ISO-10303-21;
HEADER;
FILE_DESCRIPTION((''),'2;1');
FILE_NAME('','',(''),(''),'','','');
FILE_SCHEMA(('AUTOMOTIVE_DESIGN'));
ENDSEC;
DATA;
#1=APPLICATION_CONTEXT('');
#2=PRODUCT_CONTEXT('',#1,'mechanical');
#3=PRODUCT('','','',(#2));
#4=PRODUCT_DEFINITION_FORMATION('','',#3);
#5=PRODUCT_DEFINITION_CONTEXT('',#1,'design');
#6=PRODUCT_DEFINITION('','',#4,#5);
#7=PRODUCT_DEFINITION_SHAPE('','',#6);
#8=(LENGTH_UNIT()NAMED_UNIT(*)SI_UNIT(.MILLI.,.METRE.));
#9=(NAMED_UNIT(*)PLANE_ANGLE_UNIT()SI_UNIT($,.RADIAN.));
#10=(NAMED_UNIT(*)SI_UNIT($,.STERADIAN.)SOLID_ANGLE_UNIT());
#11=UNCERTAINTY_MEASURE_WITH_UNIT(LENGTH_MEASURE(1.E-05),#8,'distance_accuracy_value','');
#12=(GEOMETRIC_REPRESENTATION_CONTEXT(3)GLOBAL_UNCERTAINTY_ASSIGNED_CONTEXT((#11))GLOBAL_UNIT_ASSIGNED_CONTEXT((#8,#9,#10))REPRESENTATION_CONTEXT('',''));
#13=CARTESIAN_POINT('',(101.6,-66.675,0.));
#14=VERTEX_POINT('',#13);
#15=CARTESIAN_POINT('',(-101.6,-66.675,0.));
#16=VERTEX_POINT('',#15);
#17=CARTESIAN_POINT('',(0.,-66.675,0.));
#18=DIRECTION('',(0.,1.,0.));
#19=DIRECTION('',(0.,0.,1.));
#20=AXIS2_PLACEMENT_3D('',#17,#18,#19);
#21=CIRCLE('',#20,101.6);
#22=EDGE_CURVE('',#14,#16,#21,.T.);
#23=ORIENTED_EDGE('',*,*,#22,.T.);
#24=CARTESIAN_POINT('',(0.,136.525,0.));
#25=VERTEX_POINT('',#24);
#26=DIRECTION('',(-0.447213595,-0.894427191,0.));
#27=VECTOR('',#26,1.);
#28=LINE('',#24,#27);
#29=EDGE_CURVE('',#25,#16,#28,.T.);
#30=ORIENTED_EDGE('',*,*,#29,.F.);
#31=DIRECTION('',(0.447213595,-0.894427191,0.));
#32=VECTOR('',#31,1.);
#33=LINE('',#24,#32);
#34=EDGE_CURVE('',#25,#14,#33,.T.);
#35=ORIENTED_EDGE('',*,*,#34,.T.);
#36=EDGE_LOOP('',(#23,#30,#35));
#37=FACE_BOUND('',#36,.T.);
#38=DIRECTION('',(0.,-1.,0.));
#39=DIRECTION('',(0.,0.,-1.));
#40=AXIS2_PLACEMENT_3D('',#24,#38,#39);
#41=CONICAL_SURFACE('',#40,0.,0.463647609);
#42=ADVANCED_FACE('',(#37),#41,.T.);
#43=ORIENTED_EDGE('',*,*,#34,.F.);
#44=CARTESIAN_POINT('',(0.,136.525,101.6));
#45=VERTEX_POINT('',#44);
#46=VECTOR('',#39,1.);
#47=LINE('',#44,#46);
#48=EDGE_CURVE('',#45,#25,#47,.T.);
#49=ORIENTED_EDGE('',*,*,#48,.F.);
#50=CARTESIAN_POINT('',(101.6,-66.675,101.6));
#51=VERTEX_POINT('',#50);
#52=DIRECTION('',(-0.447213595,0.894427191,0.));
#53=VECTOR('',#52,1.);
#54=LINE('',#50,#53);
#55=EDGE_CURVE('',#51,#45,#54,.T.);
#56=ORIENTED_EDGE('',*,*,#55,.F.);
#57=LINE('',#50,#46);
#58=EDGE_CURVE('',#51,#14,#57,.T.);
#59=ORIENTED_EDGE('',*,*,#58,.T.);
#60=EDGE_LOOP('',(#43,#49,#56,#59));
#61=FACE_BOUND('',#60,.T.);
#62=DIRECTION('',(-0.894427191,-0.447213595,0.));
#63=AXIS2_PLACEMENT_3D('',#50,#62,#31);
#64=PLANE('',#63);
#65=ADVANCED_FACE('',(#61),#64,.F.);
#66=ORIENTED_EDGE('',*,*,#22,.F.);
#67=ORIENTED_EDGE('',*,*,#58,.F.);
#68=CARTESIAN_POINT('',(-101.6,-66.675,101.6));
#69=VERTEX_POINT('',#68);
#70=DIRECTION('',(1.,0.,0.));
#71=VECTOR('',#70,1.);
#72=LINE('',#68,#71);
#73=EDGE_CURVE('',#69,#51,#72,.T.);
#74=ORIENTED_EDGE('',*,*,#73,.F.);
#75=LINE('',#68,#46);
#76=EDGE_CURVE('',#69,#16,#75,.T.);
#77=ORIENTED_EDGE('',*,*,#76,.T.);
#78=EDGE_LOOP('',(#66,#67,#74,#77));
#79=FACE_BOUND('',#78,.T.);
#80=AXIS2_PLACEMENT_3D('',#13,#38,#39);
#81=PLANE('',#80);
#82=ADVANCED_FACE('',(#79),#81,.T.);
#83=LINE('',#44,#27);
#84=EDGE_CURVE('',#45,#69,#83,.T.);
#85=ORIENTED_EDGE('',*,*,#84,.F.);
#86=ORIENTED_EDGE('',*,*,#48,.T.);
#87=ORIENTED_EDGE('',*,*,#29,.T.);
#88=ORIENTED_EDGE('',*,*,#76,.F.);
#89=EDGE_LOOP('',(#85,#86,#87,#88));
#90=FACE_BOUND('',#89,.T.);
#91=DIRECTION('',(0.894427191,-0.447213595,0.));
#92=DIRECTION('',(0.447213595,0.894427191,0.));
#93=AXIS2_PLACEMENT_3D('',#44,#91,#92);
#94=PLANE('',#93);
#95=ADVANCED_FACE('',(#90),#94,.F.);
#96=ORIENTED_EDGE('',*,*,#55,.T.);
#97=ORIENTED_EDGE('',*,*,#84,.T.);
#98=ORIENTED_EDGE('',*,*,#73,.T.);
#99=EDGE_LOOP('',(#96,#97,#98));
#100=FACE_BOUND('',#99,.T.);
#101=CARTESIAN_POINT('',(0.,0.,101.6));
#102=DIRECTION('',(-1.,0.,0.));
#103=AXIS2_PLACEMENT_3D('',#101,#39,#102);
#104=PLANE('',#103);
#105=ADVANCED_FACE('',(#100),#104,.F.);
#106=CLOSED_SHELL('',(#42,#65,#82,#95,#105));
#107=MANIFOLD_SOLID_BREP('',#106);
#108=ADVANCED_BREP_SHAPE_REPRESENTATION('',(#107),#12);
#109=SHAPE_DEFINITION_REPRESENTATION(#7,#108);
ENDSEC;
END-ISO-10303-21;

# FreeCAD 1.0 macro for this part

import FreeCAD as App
import Part
import Sketcher

V = App.Vector
Q = App.Units.Quantity


def add_polygon(sketch, points):
    """Adds a closed chain of lines whose ends are joined by coincident constraints."""
    first, n = sketch.GeometryCount, len(points)
    for a, b in zip(points, points[1:] + points[:1]):
        sketch.addGeometry(Part.LineSegment(App.Vector(*a, 0), App.Vector(*b, 0)), False)
    for i in range(n):
        sketch.addConstraint(Sketcher.Constraint("Coincident", first + i, 2, first + (i + 1) % n, 1))

doc = App.newDocument("Part")
body = doc.addObject("PartDesign::Body", "Body")

# Sketch on XY plane
sketch1 = body.newObject("Sketcher::SketchObject", "Sketch")
sketch1.AttachmentSupport = (doc.getObject("XY_Plane"), [""])
sketch1.MapMode = "FlatFace"
add_polygon(sketch1, [(0, 137), (-102, -67), (0, -67)])  # lines 0-2
sketch1.addConstraint([
    Sketcher.Constraint("Horizontal", 1),
    Sketcher.Constraint("Vertical", 2),
    Sketcher.Constraint("PointOnObject", 1, 2, -2),
    Sketcher.Constraint("DistanceX", 1, 1, 1, 2, Q("4 in")),
    Sketcher.Constraint("DistanceY", 2, 1, 2, 2, Q("8 in")),
    Sketcher.Constraint("DistanceY", 0, 2, -1, 1, Q("2.625 in")),
])
revolution = body.newObject("PartDesign::Revolution", "Revolution")
revolution.Profile = sketch1
revolution.ReferenceAxis = (sketch1, ["V_Axis"])
revolution.Angle = 180
revolution.Reversed = True

# Sketch on XY plane
sketch2 = body.newObject("Sketcher::SketchObject", "Sketch001")
sketch2.AttachmentSupport = (doc.getObject("XY_Plane"), [""])
sketch2.MapMode = "FlatFace"
add_polygon(sketch2, [(0, 137), (-102, -67), (102, -67)])  # lines 0-2
sketch2.addConstraint([
    Sketcher.Constraint("Horizontal", 1),
    Sketcher.Constraint("PointOnObject", 2, 2, -2),
    Sketcher.Constraint("Equal", 0, 2),
    Sketcher.Constraint("DistanceX", 1, 1, 1, 2, Q("8 in")),
    Sketcher.Constraint("DistanceY", 0, 2, 2, 2, Q("8 in")),
    Sketcher.Constraint("DistanceY", 0, 2, -1, 1, Q("2.625 in")),
])
pad1 = body.newObject("PartDesign::Pad", "Pad")
pad1.Profile = sketch2
pad1.Length = Q("4 in")

doc.recompute()
